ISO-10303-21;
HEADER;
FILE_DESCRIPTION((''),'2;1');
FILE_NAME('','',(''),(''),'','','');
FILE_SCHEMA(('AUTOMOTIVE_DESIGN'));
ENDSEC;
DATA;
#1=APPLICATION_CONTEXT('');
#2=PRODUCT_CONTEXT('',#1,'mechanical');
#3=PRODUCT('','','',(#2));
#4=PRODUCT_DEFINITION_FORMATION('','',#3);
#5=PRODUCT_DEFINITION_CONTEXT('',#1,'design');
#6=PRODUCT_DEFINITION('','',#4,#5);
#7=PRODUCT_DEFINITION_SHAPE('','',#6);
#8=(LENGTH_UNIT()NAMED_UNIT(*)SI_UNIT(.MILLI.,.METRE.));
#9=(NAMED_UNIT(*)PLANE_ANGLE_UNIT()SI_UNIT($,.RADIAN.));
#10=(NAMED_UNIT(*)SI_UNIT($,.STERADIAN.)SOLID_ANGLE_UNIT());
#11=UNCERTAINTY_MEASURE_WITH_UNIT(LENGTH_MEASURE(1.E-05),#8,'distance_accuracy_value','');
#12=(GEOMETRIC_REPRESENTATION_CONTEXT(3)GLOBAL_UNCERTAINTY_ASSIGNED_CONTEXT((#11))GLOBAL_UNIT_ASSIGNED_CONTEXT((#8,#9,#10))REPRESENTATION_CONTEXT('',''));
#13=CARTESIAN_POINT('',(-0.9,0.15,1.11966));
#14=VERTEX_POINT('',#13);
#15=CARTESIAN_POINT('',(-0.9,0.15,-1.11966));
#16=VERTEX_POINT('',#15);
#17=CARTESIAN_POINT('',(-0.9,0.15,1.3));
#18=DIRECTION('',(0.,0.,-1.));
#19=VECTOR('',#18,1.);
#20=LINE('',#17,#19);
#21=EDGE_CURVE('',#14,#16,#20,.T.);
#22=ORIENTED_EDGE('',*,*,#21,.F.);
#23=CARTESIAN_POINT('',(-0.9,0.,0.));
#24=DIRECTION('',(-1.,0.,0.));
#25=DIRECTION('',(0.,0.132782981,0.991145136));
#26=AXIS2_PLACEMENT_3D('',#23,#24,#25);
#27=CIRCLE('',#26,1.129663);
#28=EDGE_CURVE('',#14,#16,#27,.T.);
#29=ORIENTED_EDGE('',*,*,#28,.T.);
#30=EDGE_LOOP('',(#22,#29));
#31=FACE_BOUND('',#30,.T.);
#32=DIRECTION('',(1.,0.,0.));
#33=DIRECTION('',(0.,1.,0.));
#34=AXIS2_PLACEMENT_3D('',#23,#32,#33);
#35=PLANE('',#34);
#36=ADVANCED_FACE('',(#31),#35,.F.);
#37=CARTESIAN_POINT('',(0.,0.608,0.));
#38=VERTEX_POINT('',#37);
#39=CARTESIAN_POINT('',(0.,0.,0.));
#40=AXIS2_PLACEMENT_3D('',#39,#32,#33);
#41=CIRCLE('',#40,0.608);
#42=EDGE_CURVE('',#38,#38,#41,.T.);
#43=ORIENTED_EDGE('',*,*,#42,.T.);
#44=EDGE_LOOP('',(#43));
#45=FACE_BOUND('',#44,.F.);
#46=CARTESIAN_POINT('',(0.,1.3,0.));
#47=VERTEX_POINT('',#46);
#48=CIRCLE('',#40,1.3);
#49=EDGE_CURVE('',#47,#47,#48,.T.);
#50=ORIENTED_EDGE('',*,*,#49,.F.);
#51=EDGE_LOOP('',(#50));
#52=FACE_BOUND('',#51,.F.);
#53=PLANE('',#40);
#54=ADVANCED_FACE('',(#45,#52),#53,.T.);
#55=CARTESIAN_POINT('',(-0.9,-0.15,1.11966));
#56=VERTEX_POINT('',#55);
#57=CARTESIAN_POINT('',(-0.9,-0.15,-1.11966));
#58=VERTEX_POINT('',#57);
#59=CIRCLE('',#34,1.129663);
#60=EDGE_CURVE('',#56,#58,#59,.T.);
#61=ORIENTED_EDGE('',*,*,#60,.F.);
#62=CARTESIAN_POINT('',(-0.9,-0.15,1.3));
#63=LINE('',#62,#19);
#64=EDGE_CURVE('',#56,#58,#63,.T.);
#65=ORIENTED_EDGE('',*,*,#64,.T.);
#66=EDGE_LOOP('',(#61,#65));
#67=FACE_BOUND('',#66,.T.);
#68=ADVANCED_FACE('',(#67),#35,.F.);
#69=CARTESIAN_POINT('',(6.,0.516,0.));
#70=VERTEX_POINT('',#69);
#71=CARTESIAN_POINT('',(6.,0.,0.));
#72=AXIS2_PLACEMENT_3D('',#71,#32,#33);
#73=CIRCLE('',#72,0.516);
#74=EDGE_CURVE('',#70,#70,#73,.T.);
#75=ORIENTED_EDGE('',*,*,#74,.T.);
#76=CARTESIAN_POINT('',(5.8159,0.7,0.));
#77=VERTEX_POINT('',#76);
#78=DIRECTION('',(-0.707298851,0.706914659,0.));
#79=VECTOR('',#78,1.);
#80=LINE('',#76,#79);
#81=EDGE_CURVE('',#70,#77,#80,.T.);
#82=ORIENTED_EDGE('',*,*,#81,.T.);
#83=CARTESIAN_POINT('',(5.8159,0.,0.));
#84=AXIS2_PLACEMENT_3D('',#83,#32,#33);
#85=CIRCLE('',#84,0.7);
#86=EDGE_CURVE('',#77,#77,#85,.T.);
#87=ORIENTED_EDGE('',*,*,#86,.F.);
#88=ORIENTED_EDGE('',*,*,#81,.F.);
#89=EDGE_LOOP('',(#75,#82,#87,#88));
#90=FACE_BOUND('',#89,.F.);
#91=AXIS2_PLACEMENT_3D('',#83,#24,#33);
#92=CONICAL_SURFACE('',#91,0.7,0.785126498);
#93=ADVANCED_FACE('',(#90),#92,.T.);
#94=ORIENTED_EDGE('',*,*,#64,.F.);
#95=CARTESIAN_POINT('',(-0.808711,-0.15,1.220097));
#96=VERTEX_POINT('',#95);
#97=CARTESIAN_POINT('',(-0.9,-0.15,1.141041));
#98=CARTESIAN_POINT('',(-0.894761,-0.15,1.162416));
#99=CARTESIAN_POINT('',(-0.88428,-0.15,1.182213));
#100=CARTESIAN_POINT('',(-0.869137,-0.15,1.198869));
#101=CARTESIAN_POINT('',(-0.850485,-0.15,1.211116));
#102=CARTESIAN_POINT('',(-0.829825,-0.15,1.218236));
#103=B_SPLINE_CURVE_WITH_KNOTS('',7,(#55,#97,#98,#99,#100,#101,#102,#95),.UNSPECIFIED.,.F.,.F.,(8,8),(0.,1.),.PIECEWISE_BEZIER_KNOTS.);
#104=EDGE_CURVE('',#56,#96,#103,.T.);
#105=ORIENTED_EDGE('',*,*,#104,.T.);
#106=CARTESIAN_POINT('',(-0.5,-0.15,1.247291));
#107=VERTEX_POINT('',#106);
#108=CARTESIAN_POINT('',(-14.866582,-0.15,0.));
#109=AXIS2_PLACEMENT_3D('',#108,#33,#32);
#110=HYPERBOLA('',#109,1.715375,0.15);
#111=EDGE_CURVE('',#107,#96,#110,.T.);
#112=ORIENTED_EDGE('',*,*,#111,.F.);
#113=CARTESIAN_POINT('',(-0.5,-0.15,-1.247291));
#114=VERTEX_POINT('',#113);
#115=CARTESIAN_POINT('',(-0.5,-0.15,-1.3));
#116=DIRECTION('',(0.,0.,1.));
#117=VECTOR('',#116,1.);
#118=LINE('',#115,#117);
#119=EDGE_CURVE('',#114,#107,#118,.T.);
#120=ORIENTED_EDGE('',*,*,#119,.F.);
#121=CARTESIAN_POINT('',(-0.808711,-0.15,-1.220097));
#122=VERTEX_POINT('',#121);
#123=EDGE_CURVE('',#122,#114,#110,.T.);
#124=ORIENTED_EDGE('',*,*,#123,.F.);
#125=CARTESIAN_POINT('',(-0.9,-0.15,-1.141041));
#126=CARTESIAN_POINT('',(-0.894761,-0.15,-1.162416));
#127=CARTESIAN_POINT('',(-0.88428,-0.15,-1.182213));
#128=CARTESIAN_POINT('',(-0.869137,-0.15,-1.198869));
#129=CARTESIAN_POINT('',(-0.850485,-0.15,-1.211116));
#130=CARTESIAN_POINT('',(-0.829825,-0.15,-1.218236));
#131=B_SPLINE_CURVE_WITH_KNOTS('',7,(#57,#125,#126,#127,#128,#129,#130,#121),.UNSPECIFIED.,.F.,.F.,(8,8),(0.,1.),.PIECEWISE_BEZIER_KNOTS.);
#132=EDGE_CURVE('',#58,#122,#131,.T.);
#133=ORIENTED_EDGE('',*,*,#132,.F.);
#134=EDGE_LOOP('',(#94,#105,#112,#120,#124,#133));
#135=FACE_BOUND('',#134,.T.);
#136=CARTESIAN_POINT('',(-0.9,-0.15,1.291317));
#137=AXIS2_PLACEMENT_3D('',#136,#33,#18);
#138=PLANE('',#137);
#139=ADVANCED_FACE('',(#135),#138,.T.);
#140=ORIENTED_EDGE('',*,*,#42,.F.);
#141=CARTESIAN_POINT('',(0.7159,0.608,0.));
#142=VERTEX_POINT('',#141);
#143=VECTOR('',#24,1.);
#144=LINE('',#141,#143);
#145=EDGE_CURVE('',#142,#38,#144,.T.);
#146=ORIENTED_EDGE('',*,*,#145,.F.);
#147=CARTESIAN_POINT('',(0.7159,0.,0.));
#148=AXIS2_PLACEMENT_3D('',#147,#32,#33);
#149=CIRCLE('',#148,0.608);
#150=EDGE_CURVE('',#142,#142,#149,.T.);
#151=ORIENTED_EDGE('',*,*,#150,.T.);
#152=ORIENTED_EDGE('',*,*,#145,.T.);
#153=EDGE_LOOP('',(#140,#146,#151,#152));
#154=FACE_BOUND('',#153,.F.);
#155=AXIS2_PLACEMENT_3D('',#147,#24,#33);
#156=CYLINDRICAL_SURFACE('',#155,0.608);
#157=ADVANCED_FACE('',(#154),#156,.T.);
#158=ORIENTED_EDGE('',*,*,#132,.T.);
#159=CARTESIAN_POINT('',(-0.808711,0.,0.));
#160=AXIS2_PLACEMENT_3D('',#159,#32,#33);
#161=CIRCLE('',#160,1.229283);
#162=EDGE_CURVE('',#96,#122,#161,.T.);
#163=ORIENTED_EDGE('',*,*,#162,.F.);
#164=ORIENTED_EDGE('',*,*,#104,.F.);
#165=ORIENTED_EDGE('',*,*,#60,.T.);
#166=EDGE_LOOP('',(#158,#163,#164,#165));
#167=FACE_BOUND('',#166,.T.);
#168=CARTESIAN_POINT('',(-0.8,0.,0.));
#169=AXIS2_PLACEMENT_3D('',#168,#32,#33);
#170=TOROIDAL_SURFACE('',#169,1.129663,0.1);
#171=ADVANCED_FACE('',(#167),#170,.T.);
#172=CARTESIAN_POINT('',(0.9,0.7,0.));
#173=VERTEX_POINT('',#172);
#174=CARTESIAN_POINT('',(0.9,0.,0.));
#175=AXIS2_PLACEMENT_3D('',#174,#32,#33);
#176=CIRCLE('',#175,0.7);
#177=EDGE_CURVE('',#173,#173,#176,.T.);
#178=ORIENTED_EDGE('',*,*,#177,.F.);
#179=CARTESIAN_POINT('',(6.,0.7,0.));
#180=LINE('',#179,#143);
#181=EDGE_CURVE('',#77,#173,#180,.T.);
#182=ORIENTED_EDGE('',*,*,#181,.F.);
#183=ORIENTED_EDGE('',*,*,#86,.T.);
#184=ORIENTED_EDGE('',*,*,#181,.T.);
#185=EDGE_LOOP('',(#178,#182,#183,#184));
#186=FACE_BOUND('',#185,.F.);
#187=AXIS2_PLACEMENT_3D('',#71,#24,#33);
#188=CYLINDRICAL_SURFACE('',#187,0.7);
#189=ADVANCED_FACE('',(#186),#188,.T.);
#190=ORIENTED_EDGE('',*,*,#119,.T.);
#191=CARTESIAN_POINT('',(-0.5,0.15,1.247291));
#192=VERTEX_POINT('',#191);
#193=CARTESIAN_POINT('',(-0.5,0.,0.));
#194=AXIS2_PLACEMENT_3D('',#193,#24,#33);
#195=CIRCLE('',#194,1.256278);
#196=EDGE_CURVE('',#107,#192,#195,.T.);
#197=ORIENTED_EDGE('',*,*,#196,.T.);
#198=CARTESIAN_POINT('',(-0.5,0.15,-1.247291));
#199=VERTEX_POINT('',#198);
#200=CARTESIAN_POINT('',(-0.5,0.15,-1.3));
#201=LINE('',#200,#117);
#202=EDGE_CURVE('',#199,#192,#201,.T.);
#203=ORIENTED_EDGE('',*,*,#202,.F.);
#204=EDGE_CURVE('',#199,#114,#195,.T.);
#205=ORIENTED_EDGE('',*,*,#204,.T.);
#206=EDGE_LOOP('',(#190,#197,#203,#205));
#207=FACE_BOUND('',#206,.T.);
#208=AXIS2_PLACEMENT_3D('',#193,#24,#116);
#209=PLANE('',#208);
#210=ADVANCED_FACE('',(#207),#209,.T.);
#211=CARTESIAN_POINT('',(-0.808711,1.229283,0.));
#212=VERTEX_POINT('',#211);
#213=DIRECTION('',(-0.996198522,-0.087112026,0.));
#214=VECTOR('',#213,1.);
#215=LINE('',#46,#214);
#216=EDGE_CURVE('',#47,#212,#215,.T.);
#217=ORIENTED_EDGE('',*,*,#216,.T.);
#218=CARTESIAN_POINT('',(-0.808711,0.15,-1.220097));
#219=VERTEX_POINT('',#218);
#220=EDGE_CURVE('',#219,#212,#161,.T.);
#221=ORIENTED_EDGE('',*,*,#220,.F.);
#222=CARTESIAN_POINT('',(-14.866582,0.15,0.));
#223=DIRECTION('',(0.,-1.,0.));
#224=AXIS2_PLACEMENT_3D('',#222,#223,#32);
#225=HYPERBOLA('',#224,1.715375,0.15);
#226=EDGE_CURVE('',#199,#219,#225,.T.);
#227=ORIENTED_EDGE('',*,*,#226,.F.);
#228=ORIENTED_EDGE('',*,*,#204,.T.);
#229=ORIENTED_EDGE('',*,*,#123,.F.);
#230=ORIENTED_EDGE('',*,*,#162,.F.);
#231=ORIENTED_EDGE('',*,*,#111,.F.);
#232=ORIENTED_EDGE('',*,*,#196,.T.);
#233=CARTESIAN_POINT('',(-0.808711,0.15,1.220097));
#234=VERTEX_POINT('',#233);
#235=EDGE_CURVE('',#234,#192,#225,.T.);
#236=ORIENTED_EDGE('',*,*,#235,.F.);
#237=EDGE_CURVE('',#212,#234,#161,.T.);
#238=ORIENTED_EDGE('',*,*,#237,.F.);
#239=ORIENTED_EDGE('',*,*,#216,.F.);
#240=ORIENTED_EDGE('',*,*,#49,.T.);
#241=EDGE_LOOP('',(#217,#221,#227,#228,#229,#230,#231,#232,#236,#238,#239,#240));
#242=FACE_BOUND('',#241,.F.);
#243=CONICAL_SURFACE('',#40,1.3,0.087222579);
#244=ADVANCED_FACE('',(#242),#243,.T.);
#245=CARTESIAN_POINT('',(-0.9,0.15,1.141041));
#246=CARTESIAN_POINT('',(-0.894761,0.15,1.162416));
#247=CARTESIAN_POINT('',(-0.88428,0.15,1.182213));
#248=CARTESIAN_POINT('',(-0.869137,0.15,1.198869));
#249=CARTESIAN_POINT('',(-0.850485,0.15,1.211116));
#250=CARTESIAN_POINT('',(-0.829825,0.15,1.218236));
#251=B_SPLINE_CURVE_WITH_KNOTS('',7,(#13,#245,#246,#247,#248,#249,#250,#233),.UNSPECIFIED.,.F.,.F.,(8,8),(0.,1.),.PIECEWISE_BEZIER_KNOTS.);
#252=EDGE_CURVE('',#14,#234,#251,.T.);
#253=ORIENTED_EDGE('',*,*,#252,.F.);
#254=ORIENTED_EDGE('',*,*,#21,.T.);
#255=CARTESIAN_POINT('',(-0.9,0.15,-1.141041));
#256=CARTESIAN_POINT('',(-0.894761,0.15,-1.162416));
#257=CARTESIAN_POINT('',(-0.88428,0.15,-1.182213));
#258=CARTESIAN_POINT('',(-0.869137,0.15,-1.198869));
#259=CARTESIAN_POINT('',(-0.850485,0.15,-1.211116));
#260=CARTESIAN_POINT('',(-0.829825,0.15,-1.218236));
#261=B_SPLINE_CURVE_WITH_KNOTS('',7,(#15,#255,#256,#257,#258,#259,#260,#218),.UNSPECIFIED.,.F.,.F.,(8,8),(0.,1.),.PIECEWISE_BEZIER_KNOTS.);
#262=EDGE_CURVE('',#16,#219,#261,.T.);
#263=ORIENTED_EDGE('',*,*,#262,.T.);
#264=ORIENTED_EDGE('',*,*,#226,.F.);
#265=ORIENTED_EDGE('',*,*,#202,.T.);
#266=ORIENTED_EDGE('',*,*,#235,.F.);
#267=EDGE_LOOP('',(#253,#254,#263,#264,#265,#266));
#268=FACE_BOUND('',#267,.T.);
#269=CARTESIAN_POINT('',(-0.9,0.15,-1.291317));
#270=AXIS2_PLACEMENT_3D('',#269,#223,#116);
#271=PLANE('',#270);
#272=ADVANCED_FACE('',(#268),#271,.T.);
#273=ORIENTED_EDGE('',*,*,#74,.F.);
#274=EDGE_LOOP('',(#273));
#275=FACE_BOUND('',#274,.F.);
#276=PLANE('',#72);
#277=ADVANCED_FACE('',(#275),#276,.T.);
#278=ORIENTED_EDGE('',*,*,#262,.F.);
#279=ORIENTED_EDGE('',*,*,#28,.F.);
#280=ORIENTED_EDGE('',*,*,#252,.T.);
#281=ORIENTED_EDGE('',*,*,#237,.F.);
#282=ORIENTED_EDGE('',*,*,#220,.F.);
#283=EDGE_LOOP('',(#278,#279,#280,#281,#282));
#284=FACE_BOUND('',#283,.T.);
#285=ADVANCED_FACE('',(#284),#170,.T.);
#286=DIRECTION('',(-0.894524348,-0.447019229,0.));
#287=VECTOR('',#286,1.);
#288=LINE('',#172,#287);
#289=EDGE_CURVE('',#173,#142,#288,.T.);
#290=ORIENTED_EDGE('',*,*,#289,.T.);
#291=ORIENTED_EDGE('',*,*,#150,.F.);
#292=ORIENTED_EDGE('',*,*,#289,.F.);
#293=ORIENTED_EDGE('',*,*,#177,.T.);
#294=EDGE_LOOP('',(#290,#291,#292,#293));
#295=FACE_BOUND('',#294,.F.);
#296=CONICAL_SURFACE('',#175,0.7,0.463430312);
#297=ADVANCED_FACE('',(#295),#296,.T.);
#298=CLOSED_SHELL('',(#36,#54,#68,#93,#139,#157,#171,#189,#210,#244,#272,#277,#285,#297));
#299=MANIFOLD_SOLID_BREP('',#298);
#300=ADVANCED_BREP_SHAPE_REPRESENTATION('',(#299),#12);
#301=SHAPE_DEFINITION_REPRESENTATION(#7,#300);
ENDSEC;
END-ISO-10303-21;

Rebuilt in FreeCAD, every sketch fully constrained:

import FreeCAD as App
import Part
import Sketcher

V = App.Vector


def edges_at(feature, points):
    """Names of the edges that pass closest to the given points."""
    edges = feature.Shape.Edges
    near = lambda p: min(range(len(edges)), key=lambda i: edges[i].distToShape(Part.Vertex(*p))[0])
    return sorted({f"Edge{near(p) + 1}" for p in points})

doc = App.newDocument("Part")
params = doc.addObject("Spreadsheet::Sheet", "Params")
for row, (alias, value) in enumerate([
    ("sketch1_width", "5.1 mm"),
    ("sketch1_height", "0.7 mm"),
    ("revolution_angle", "360 deg"),
    ("fillet_radius", "0.1 mm"),
    ("sketch2_width", "0.3 mm"),
    ("sketch2_height", "2.6 mm"),
    ("pocket1_length", "0.4 mm"),
    ("chamfer_size", "0.184 mm"),
    ("chamfer_size2", "0.1841 mm"),
], start=1):
    params.set(f"A{row}", alias)
    params.set(f"B{row}", "=" + value)
    params.setAlias(f"B{row}", alias)

body = doc.addObject("PartDesign::Body", "Body")

# Sketch on XY plane
sketch1 = doc.addObject("Sketcher::SketchObject", "Sketch")
body.addObject(sketch1)
sketch1.AttachmentSupport = (doc.XY_Plane, [""])
sketch1.MapMode = "FlatFace"
sketch1.addGeometry([
    Part.LineSegment(V(-0.9, 1.22, 0), V(-0.9, 0, 0)),  # 0
    Part.LineSegment(V(-0.9, 0, 0), V(6, 0, 0)),  # 1
    Part.LineSegment(V(6, 0, 0), V(6, 0.7, 0)),  # 2
    Part.LineSegment(V(6, 0.7, 0), V(0.9, 0.7, 0)),  # 3
    Part.LineSegment(V(0.9, 0.7, 0), V(0.72, 0.61, 0)),  # 4
    Part.LineSegment(V(0.72, 0.61, 0), V(0, 0.61, 0)),  # 5
    Part.LineSegment(V(0, 0.61, 0), V(0, 1.3, 0)),  # 6
    Part.LineSegment(V(0, 1.3, 0), V(-0.9, 1.22, 0)),  # 7
], False)
sketch1.addConstraint([
    Sketcher.Constraint("Coincident", 0, 2, 1, 1),
    Sketcher.Constraint("Coincident", 1, 2, 2, 1),
    Sketcher.Constraint("Coincident", 2, 2, 3, 1),
    Sketcher.Constraint("Coincident", 3, 2, 4, 1),
    Sketcher.Constraint("Coincident", 4, 2, 5, 1),
    Sketcher.Constraint("Coincident", 5, 2, 6, 1),
    Sketcher.Constraint("Coincident", 6, 2, 7, 1),
    Sketcher.Constraint("Coincident", 7, 2, 0, 1),
    Sketcher.Constraint("Vertical", 0),
    Sketcher.Constraint("Horizontal", 1),
    Sketcher.Constraint("Vertical", 2),
    Sketcher.Constraint("Horizontal", 3),
    Sketcher.Constraint("Horizontal", 5),
    Sketcher.Constraint("Vertical", 6),
    Sketcher.Constraint("PointOnObject", 0, 2, -1),
    Sketcher.Constraint("PointOnObject", 5, 2, -2),
    Sketcher.Constraint("DistanceX", 3, 2, 3, 1, 5.1),
    Sketcher.Constraint("DistanceX", -1, 1, 1, 2, 6.0),
    Sketcher.Constraint("DistanceX", 0, 2, -1, 1, 0.9),
    Sketcher.Constraint("DistanceY", 2, 1, 2, 2, 0.7),
    Sketcher.Constraint("DistanceX", 4, 2, 3, 2, 0.184),
    Sketcher.Constraint("DistanceY", -1, 1, 6, 2, 1.3),
    Sketcher.Constraint("DistanceY", 6, 1, 6, 2, 0.692),
    Sketcher.Constraint("DistanceY", 0, 2, 0, 1, 1.2213),
])
sketch1.setExpression("Constraints[16]", "Params.sketch1_width")
sketch1.setExpression("Constraints[19]", "Params.sketch1_height")
revolution = doc.addObject("PartDesign::Revolution", "Revolution")
body.addObject(revolution)
revolution.Profile = sketch1
revolution.ReferenceAxis = (sketch1, ["H_Axis"])
revolution.setExpression("Angle", "Params.revolution_angle")
doc.recompute()

fillet = doc.addObject("PartDesign::Fillet", "Fillet")
body.addObject(fillet)
fillet.Base = (revolution, edges_at(revolution, [(-0.9, -1.221, 0)]))
fillet.setExpression("Radius", "Params.fillet_radius")

# Sketch on YZ plane
sketch2 = doc.addObject("Sketcher::SketchObject", "Sketch001")
body.addObject(sketch2)
sketch2.AttachmentSupport = (doc.YZ_Plane, [""])
sketch2.MapMode = "FlatFace"
sketch2.AttachmentOffset = App.Placement(V(0, 0, -0.9), App.Rotation())
sketch2.addGeometry([
    Part.LineSegment(V(-0.15, 1.3, 0), V(0.15, 1.3, 0)),
    Part.LineSegment(V(0.15, 1.3, 0), V(0.15, -1.3, 0)),
    Part.LineSegment(V(0.15, -1.3, 0), V(-0.15, -1.3, 0)),
    Part.LineSegment(V(-0.15, -1.3, 0), V(-0.15, 1.3, 0)),
], False)
sketch2.addConstraint([
    Sketcher.Constraint("Coincident", 0, 2, 1, 1),
    Sketcher.Constraint("Coincident", 1, 2, 2, 1),
    Sketcher.Constraint("Coincident", 2, 2, 3, 1),
    Sketcher.Constraint("Coincident", 3, 2, 0, 1),
    Sketcher.Constraint("Horizontal", 0),
    Sketcher.Constraint("Vertical", 1),
    Sketcher.Constraint("Horizontal", 2),
    Sketcher.Constraint("Vertical", 3),
    Sketcher.Constraint("Symmetric", 0, 2, 2, 2, -1, 1),
    Sketcher.Constraint("DistanceX", 0, 1, 0, 2, 0.3),
    Sketcher.Constraint("DistanceY", 1, 2, 1, 1, 2.6),
])
sketch2.setExpression("Constraints[9]", "Params.sketch2_width")
sketch2.setExpression("Constraints[10]", "Params.sketch2_height")
pocket1 = doc.addObject("PartDesign::Pocket", "Pocket")
body.addObject(pocket1)
pocket1.Profile = sketch2
pocket1.setExpression("Length", "Params.pocket1_length")
pocket1.Reversed = True
doc.recompute()

chamfer = doc.addObject("PartDesign::Chamfer", "Chamfer")
body.addObject(chamfer)
chamfer.Base = (pocket1, edges_at(pocket1, [(6, -0.7, 0)]))
chamfer.ChamferType = "Two distances"
chamfer.setExpression("Size", "Params.chamfer_size")
chamfer.setExpression("Size2", "Params.chamfer_size2")

doc.recompute()
